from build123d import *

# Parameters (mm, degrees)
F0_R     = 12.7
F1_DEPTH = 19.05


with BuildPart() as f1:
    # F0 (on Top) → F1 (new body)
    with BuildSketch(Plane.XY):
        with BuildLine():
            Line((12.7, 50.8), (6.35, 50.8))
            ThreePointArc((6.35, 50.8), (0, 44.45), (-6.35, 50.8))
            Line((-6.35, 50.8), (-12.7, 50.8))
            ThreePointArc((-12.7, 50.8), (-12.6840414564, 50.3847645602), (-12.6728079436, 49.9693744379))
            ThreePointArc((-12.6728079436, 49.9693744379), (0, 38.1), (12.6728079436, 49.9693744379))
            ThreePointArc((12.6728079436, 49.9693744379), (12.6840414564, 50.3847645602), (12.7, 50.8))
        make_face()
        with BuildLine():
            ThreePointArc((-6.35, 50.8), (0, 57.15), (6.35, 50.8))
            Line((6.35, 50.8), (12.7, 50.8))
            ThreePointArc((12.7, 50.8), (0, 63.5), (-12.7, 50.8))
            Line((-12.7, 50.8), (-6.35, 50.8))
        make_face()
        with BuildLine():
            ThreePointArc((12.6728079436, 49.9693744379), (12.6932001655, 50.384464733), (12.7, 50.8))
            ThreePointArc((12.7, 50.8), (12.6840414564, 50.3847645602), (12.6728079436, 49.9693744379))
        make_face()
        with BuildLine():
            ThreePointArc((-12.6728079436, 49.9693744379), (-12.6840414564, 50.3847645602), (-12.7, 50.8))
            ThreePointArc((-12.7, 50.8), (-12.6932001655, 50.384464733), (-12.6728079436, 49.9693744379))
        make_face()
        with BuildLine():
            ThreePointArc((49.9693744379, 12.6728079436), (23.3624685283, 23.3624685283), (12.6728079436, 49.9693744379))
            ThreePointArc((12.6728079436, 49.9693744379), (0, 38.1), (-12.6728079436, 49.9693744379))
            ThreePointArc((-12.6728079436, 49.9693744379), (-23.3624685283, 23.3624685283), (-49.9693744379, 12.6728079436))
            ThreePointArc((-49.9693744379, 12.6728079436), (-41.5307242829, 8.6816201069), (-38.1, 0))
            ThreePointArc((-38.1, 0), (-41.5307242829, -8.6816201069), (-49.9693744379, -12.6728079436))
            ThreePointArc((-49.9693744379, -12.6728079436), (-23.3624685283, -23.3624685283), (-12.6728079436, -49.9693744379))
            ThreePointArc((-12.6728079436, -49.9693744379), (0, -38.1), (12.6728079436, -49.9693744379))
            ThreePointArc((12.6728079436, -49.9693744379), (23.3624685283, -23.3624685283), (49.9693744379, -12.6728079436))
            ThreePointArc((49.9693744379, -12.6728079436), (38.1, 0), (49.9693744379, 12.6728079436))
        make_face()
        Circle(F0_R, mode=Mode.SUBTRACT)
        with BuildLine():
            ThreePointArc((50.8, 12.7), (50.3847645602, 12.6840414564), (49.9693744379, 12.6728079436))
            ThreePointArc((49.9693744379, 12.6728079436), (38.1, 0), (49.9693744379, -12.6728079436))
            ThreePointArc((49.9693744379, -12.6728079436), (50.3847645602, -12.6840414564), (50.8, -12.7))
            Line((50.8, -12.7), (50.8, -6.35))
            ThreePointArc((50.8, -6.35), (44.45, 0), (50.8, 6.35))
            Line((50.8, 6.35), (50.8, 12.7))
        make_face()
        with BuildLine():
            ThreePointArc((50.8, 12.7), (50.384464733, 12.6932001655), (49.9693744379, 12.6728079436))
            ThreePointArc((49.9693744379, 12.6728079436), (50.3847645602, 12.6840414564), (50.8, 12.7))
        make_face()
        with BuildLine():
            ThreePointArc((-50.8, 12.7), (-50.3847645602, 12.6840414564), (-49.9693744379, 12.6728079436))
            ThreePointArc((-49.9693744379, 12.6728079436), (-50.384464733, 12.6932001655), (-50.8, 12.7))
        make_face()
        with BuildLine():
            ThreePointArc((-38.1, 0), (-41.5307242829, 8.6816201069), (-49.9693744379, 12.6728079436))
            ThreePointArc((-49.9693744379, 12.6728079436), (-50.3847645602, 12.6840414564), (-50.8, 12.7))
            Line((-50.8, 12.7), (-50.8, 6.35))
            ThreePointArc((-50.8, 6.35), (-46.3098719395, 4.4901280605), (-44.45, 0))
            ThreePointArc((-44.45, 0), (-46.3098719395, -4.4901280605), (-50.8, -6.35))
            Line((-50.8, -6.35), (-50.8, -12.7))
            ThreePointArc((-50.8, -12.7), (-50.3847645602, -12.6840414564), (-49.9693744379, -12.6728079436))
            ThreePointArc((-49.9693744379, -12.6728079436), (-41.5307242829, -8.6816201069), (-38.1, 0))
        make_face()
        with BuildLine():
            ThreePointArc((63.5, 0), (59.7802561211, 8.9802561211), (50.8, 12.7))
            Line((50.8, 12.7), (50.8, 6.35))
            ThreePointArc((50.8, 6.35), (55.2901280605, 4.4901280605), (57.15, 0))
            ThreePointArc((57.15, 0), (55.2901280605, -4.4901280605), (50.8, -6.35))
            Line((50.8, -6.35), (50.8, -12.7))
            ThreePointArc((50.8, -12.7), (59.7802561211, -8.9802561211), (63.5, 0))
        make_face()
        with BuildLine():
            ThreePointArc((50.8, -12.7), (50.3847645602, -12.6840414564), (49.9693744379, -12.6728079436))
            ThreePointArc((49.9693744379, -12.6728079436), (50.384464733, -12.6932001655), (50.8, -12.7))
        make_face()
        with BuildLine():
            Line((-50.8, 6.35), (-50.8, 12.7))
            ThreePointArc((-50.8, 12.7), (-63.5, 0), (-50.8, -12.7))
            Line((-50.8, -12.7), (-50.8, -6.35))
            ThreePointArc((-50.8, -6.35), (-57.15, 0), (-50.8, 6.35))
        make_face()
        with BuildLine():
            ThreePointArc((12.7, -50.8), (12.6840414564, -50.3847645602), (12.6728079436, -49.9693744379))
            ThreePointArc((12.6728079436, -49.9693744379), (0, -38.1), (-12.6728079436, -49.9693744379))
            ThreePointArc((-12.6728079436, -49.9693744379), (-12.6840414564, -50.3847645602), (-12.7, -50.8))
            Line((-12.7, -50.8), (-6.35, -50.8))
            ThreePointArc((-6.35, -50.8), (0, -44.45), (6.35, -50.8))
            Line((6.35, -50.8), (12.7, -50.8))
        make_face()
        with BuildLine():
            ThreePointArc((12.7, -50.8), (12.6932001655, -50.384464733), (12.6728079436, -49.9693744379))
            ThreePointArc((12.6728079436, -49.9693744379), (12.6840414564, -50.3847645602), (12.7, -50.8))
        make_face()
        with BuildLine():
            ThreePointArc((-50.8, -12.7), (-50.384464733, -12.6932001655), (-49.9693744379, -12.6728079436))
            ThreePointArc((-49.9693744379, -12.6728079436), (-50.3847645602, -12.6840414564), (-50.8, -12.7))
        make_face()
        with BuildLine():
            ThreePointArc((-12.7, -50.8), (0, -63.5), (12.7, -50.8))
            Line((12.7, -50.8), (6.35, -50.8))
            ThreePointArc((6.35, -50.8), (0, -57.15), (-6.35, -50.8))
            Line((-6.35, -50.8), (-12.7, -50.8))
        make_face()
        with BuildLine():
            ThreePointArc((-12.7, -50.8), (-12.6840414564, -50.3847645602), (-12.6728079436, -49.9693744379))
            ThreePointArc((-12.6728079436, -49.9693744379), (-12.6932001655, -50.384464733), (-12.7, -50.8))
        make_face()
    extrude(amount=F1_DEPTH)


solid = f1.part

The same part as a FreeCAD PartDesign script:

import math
import FreeCAD as App
import Part
import Sketcher

V = App.Vector
Q = App.Units.Quantity

doc = App.newDocument("Part")
body = doc.addObject("PartDesign::Body", "Body")

sketch1 = body.newObject("Sketcher::SketchObject", "Sketch")
sketch1.AttachmentSupport = (doc.getObject("XY_Plane"), [""])
sketch1.MapMode = "FlatFace"
sketch1.addGeometry([
    Part.ArcOfCircle(Part.Circle(V(0, 50.8, 0), V(0, 0, 1), 12.7), math.radians(-3.75), math.radians(0)),
    Part.ArcOfCircle(Part.Circle(V(0, 50.8, 0), V(0, 0, 1), 12.7), math.radians(0), math.radians(180)),
    Part.ArcOfCircle(Part.Circle(V(0, 50.8, 0), V(0, 0, 1), 12.7), math.radians(-180), math.radians(-176.25)),
    Part.ArcOfCircle(Part.Circle(V(-49.2, 49.2, 0), V(0, 0, 1), 36.5), math.radians(-91), math.radians(1)),
    Part.ArcOfCircle(Part.Circle(V(-50.8, 0, 0), V(0, 0, 1), 12.7), math.radians(86.25), math.radians(90)),
    Part.ArcOfCircle(Part.Circle(V(-50.8, 0, 0), V(0, 0, 1), 12.7), math.radians(90), math.radians(270)),
    Part.ArcOfCircle(Part.Circle(V(-50.8, 0, 0), V(0, 0, 1), 12.7), math.radians(-90), math.radians(-86.25)),
    Part.ArcOfCircle(Part.Circle(V(-49.2, -49.2, 0), V(0, 0, 1), 36.5), math.radians(-1), math.radians(91)),
    Part.ArcOfCircle(Part.Circle(V(0, -50.8, 0), V(0, 0, 1), 12.7), math.radians(176.25), math.radians(180)),
    Part.ArcOfCircle(Part.Circle(V(0, -50.8, 0), V(0, 0, 1), 12.7), math.radians(180), math.radians(360)),
    Part.ArcOfCircle(Part.Circle(V(0, -50.8, 0), V(0, 0, 1), 12.7), math.radians(0), math.radians(3.75)),
    Part.ArcOfCircle(Part.Circle(V(49.2, -49.2, 0), V(0, 0, 1), 36.5), math.radians(89), math.radians(181)),
    Part.ArcOfCircle(Part.Circle(V(50.8, 0, 0), V(0, 0, 1), 12.7), math.radians(-93.75), math.radians(-90)),
    Part.ArcOfCircle(Part.Circle(V(50.8, 0, 0), V(0, 0, 1), 12.7), math.radians(-90), math.radians(0)),
    Part.ArcOfCircle(Part.Circle(V(50.8, 0, 0), V(0, 0, 1), 12.7), math.radians(0), math.radians(90)),
    Part.ArcOfCircle(Part.Circle(V(50.8, 0, 0), V(0, 0, 1), 12.7), math.radians(90), math.radians(93.75)),
    Part.ArcOfCircle(Part.Circle(V(49.2, 49.2, 0), V(0, 0, 1), 36.5), math.radians(179), math.radians(271)),
    Part.Circle(V(0, -50.8, 0), V(0, 0, 1), 6.3),
    Part.ArcOfCircle(Part.Circle(V(-50.8, 0, 0), V(0, 0, 1), 6.3), math.radians(0), math.radians(90)),
    Part.ArcOfCircle(Part.Circle(V(-50.8, 0, 0), V(0, 0, 1), 6.3), math.radians(-90), math.radians(0)),
    Part.ArcOfCircle(Part.Circle(V(-50.8, 0, 0), V(0, 0, 1), 6.3), math.radians(90), math.radians(270)),
    Part.ArcOfCircle(Part.Circle(V(50.8, 0, 0), V(0, 0, 1), 6.3), math.radians(90), math.radians(270)),
    Part.ArcOfCircle(Part.Circle(V(50.8, 0, 0), V(0, 0, 1), 6.3), math.radians(0), math.radians(90)),
    Part.ArcOfCircle(Part.Circle(V(50.8, 0, 0), V(0, 0, 1), 6.3), math.radians(-90), math.radians(0)),
    Part.Circle(V(0, 0, 0), V(0, 0, 1), 12.7),
    Part.Circle(V(0, 50.8, 0), V(0, 0, 1), 6.3),
], False)
sketch1.addConstraint([
    Sketcher.Constraint("Tangent", 0, 2, 1, 1),
    Sketcher.Constraint("Tangent", 1, 2, 2, 1),
    Sketcher.Constraint("Coincident", 2, 2, 3, 2),
    Sketcher.Constraint("Coincident", 3, 1, 4, 1),
    Sketcher.Constraint("Tangent", 4, 2, 5, 1),
    Sketcher.Constraint("Tangent", 5, 2, 6, 1),
    Sketcher.Constraint("Coincident", 6, 2, 7, 2),
    Sketcher.Constraint("Coincident", 7, 1, 8, 1),
    Sketcher.Constraint("Tangent", 8, 2, 9, 1),
    Sketcher.Constraint("Tangent", 9, 2, 10, 1),
    Sketcher.Constraint("Coincident", 10, 2, 11, 2),
    Sketcher.Constraint("Coincident", 11, 1, 12, 1),
    Sketcher.Constraint("Tangent", 12, 2, 13, 1),
    Sketcher.Constraint("Tangent", 13, 2, 14, 1),
    Sketcher.Constraint("Tangent", 14, 2, 15, 1),
    Sketcher.Constraint("Coincident", 15, 2, 16, 2),
    Sketcher.Constraint("Coincident", 16, 1, 0, 1),
    Sketcher.Constraint("Tangent", 18, 1, 19, 2),
    Sketcher.Constraint("Tangent", 19, 1, 20, 2),
    Sketcher.Constraint("Tangent", 20, 1, 18, 2),
    Sketcher.Constraint("Tangent", 21, 1, 22, 2),
    Sketcher.Constraint("Tangent", 22, 1, 23, 2),
    Sketcher.Constraint("Tangent", 23, 1, 21, 2),
    Sketcher.Constraint("Coincident", 24, 3, -1, 1),
    Sketcher.Constraint("Coincident", 14, 3, 12, 3),
    Sketcher.Constraint("Coincident", 17, 3, 8, 3),
    Sketcher.Constraint("Coincident", 18, 3, 4, 3),
    Sketcher.Constraint("Coincident", 21, 3, 12, 3),
    Sketcher.Constraint("Coincident", 25, 3, 0, 3),
    Sketcher.Constraint("Equal", 0, 1),
    Sketcher.Constraint("Equal", 1, 2),
    Sketcher.Constraint("Equal", 2, 4),
    Sketcher.Constraint("Equal", 4, 5),
    Sketcher.Constraint("Equal", 5, 6),
    Sketcher.Constraint("Equal", 3, 7),
    Sketcher.Constraint("Equal", 6, 8),
    Sketcher.Constraint("Equal", 8, 9),
    Sketcher.Constraint("Equal", 9, 10),
    Sketcher.Constraint("Equal", 7, 11),
    Sketcher.Constraint("Equal", 10, 12),
    Sketcher.Constraint("Equal", 14, 15),
    Sketcher.Constraint("Equal", 11, 16),
    Sketcher.Constraint("Equal", 17, 18),
    Sketcher.Constraint("Equal", 20, 21),
    Sketcher.Constraint("Equal", 15, 24),
    Sketcher.Constraint("Equal", 23, 25),
    Sketcher.Constraint("Symmetric", 0, 3, 8, 3, -1, 1),
    Sketcher.Constraint("Symmetric", 3, 3, 11, 3, -1, 1),
    Sketcher.Constraint("Symmetric", 4, 3, 12, 3, -1, 1),
    Sketcher.Constraint("Symmetric", 7, 3, 16, 3, -1, 1),
    Sketcher.Constraint("Symmetric", 7, 3, 11, 3, -2),
    Sketcher.Constraint("Symmetric", 0, 2, 1, 2, -2),
    Sketcher.Constraint("Symmetric", 5, 2, 12, 2, -2),
    Sketcher.Constraint("PointOnObject", 13, 2, -1),
    Sketcher.Constraint("PointOnObject", 18, 1, -1),
    Sketcher.Constraint("PointOnObject", 22, 1, -1),
    Sketcher.Constraint("Horizontal", 25, 3, 0, 2),
    Sketcher.Constraint("Horizontal", 17, 3, 8, 2),
    Sketcher.Constraint("Horizontal", 8, 2, 9, 2),
    Sketcher.Constraint("Vertical", 20, 3, 4, 2),
    Sketcher.Constraint("Vertical", 4, 2, 5, 2),
    Sketcher.Constraint("Vertical", 12, 2, 14, 2),
    Sketcher.Constraint("Vertical", 5, 2, 19, 1),
    Sketcher.Constraint("Vertical", 19, 1, 20, 1),
    Sketcher.Constraint("Vertical", 14, 2, 21, 1),
    Sketcher.Constraint("Vertical", 21, 1, 23, 1),
    Sketcher.Constraint("Diameter", 24, Q("1 in")),
    Sketcher.Constraint("Diameter", 17, Q("0.5 in")),
    Sketcher.Constraint("DistanceY", -1, 1, 0, 3, Q("2 in")),
    Sketcher.Constraint("DistanceX", 4, 3, -1, 1, Q("2 in")),
    Sketcher.Constraint("Radius", 3, Q("1.438 in")),
    Sketcher.Constraint("DistanceY", 7, 3, 3, 3, 98.37937),
    Sketcher.Constraint("DistanceX", 7, 3, 11, 3, 98.37937),
])
pad1 = body.newObject("PartDesign::Pad", "Pad")
pad1.Profile = sketch1
pad1.Length = Q("0.75 in")

doc.recompute()
